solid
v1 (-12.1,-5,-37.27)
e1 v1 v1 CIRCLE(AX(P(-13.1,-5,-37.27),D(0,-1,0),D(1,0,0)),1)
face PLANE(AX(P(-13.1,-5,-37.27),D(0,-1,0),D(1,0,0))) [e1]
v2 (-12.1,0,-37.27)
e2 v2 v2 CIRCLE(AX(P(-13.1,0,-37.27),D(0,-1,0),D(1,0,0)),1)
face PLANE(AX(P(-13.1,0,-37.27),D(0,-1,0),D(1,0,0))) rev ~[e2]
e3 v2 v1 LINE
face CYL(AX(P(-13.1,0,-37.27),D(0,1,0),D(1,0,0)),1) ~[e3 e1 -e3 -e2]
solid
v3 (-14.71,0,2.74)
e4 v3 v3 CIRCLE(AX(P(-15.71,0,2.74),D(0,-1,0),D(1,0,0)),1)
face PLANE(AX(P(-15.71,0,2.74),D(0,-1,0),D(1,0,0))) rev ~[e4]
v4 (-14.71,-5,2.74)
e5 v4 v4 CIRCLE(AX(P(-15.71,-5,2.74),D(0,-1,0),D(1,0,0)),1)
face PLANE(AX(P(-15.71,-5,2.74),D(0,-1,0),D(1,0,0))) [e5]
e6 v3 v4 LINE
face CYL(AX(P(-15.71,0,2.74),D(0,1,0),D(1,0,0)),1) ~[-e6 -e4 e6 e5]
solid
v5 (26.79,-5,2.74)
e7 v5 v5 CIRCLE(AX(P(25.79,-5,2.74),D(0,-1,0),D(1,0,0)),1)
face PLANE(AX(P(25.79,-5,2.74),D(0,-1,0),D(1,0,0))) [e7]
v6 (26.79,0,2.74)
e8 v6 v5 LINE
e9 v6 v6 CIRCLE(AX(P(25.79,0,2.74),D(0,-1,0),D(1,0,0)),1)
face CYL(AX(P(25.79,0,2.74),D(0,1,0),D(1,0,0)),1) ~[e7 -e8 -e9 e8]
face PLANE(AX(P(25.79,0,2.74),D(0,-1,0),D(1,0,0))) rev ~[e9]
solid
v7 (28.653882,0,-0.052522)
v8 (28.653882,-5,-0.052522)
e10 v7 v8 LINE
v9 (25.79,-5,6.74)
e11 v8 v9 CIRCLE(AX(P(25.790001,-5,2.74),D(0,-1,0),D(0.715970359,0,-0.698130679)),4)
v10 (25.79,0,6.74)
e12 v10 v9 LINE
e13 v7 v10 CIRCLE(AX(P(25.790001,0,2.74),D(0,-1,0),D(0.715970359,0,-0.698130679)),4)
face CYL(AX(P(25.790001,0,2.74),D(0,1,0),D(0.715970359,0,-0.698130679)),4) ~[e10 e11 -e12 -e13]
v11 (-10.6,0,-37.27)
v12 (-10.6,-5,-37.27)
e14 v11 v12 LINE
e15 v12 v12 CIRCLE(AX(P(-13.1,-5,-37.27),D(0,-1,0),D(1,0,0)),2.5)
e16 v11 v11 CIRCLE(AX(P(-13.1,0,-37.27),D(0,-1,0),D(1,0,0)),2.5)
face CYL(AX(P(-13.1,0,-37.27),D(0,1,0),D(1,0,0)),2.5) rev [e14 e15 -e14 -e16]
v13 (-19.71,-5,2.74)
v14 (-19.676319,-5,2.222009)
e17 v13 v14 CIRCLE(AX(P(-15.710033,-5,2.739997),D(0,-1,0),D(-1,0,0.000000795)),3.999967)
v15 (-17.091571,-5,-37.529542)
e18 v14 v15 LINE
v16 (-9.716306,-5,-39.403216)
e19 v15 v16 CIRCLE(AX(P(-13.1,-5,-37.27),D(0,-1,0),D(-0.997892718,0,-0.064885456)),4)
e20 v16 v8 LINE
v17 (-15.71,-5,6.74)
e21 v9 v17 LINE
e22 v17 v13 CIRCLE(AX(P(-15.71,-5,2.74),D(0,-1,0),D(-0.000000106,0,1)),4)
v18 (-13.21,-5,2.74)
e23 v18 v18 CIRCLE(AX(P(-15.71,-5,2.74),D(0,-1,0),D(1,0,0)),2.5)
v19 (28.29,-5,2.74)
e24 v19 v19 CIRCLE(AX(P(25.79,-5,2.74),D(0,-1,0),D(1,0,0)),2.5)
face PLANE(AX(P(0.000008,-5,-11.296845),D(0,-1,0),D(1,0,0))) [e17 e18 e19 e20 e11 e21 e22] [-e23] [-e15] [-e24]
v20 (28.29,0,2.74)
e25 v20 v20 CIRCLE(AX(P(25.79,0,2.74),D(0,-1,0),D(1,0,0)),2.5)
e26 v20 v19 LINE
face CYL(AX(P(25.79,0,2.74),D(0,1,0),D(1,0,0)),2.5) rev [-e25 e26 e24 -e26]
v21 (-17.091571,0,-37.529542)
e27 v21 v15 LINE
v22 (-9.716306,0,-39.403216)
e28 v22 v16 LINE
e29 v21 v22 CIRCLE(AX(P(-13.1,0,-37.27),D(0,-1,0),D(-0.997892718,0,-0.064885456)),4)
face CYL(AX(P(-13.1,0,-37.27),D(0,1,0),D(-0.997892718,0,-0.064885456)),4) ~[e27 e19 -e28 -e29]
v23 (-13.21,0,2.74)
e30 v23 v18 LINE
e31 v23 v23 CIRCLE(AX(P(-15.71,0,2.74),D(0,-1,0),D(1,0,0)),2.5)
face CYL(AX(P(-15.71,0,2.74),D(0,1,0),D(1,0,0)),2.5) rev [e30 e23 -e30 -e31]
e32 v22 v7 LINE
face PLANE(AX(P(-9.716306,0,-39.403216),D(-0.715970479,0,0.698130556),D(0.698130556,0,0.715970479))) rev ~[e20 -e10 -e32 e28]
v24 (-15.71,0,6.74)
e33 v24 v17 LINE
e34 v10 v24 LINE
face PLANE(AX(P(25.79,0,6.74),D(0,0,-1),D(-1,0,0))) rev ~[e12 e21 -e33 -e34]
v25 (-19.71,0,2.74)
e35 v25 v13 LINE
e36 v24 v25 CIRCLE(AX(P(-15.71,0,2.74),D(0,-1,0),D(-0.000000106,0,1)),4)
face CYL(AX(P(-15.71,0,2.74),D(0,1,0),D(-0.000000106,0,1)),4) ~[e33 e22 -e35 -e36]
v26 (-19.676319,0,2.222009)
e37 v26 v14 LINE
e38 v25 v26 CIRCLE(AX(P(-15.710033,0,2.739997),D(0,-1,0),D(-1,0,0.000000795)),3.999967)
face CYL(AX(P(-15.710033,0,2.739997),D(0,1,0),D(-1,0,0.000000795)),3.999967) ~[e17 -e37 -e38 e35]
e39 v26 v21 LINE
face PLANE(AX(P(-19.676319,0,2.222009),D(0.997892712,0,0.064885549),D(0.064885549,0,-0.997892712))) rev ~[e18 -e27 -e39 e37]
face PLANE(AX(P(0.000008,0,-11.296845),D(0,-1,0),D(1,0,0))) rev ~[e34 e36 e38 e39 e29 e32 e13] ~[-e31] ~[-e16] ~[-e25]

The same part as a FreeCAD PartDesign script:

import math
import FreeCAD as App
import Part
import Sketcher

V = App.Vector

doc = App.newDocument("Part")
body = doc.addObject("PartDesign::Body", "Body")
body.AllowCompound = True

# Sketch on XZ plane
sketch1 = body.newObject("Sketcher::SketchObject", "Sketch")
sketch1.AttachmentSupport = (doc.getObject("XZ_Plane"), [""])
sketch1.MapMode = "FlatFace"
sketch1.addGeometry(Part.LineSegment(V(-9.716306, -39.403216, 0), V(28.653882, -0.052522, 0)), False)
sketch1.addGeometry(Part.ArcOfCircle(Part.Circle(V(25.790001, 2.74, 0), V(0, 0, 1), 4), math.radians(-44.27722), math.radians(90.000012)), False)
sketch1.addGeometry(Part.LineSegment(V(25.79, 6.74, 0), V(-15.71, 6.74, 0)), False)
sketch1.addGeometry(Part.ArcOfCircle(Part.Circle(V(-15.71, 2.74, 0), V(0, 0, 1), 4), math.radians(90.000006), math.radians(179.999994)), False)
sketch1.addGeometry(Part.ArcOfCircle(Part.Circle(V(-15.710033, 2.739997, 0), V(0, 0, 1), 3.999967), math.radians(179.999954), math.radians(187.440586)), False)
sketch1.addGeometry(Part.LineSegment(V(-19.676319, 2.222009, 0), V(-17.091571, -37.529542, 0)), False)
sketch1.addGeometry(Part.ArcOfCircle(Part.Circle(V(-13.1, -37.27, 0), V(0, 0, 1), 4), math.radians(-176.279724), math.radians(-32.228965)), False)
sketch1.addGeometry(Part.Circle(V(-13.1, -37.27, 0), V(0, 0, 1), 2.5), False)
sketch1.addGeometry(Part.Circle(V(-15.71, 2.74, 0), V(0, 0, 1), 2.5), False)
sketch1.addGeometry(Part.Circle(V(25.79, 2.74, 0), V(0, 0, 1), 2.5), False)
sketch1.addGeometry(Part.Circle(V(-15.71, 2.74, 0), V(0, 0, 1), 1), False)
sketch1.addGeometry(Part.Circle(V(25.79, 2.74, 0), V(0, 0, 1), 1), False)
sketch1.addGeometry(Part.Circle(V(-13.1, -37.27, 0), V(0, 0, 1), 1), False)
sketch1.addConstraint(Sketcher.Constraint("Coincident", 0, 2, 1, 1))
sketch1.addConstraint(Sketcher.Constraint("Coincident", 1, 2, 2, 1))
sketch1.addConstraint(Sketcher.Constraint("Coincident", 2, 2, 3, 1))
sketch1.addConstraint(Sketcher.Constraint("Coincident", 3, 2, 4, 1))
sketch1.addConstraint(Sketcher.Constraint("Coincident", 4, 2, 5, 1))
sketch1.addConstraint(Sketcher.Constraint("Coincident", 5, 2, 6, 1))
sketch1.addConstraint(Sketcher.Constraint("Coincident", 6, 2, 0, 1))
sketch1.addConstraint(Sketcher.Constraint("Horizontal", 2))
sketch1.addConstraint(Sketcher.Constraint("Coincident", 7, 3, 6, 3))
sketch1.addConstraint(Sketcher.Constraint("Coincident", 8, 3, 3, 3))
sketch1.addConstraint(Sketcher.Constraint("Coincident", 9, 3, 1, 3))
sketch1.addConstraint(Sketcher.Constraint("Coincident", 10, 3, 3, 3))
sketch1.addConstraint(Sketcher.Constraint("Coincident", 11, 3, 1, 3))
sketch1.addConstraint(Sketcher.Constraint("Coincident", 12, 3, 6, 3))
sketch1.addConstraint(Sketcher.Constraint("Diameter", 7, 5.0))
sketch1.addConstraint(Sketcher.Constraint("Diameter", 8, 5.0))
sketch1.addConstraint(Sketcher.Constraint("Diameter", 9, 5.0))
sketch1.addConstraint(Sketcher.Constraint("Diameter", 10, 2.0))
sketch1.addConstraint(Sketcher.Constraint("Diameter", 11, 2.0))
sketch1.addConstraint(Sketcher.Constraint("Diameter", 12, 2.0))
sketch1.addConstraint(Sketcher.Constraint("Radius", 1, 4.0))
sketch1.addConstraint(Sketcher.Constraint("Radius", 3, 4.0))
sketch1.addConstraint(Sketcher.Constraint("Radius", 6, 4.0))
sketch1.addConstraint(Sketcher.Constraint("DistanceX", 2, 2, 2, 1, 41.5))
sketch1.addConstraint(Sketcher.Constraint("DistanceX", 3, 2, 2, 2, 4.0))
sketch1.addConstraint(Sketcher.Constraint("DistanceY", 3, 2, 2, 2, 4.0))
sketch1.addConstraint(Sketcher.Constraint("DistanceX", 6, 3, -1, 1, 13.1))
sketch1.addConstraint(Sketcher.Constraint("DistanceX", 3, 3, 1, 3, 41.5))
sketch1.addConstraint(Sketcher.Constraint("DistanceX", -1, 1, 1, 3, 25.790001))
sketch1.addConstraint(Sketcher.Constraint("DistanceY", -1, 1, 1, 3, 2.74))
sketch1.addConstraint(Sketcher.Constraint("DistanceY", 6, 3, -1, 1, 37.27))
sketch1.addConstraint(Sketcher.Constraint("Radius", 4, 3.999967))
sketch1.addConstraint(Sketcher.Constraint("DistanceX", -1, 1, 0, 2, 28.653882))
sketch1.addConstraint(Sketcher.Constraint("DistanceX", 4, 2, -1, 1, 19.676319))
sketch1.addConstraint(Sketcher.Constraint("DistanceY", -1, 1, 4, 2, 2.222009))
sketch1.addConstraint(Sketcher.Constraint("DistanceX", 5, 2, -1, 1, 17.091571))
sketch1.addConstraint(Sketcher.Constraint("Distance", 0, 54.961336))
pad1 = body.newObject("PartDesign::Pad", "Pad")
pad1.Profile = sketch1
pad1.Length = 5

doc.recompute()
